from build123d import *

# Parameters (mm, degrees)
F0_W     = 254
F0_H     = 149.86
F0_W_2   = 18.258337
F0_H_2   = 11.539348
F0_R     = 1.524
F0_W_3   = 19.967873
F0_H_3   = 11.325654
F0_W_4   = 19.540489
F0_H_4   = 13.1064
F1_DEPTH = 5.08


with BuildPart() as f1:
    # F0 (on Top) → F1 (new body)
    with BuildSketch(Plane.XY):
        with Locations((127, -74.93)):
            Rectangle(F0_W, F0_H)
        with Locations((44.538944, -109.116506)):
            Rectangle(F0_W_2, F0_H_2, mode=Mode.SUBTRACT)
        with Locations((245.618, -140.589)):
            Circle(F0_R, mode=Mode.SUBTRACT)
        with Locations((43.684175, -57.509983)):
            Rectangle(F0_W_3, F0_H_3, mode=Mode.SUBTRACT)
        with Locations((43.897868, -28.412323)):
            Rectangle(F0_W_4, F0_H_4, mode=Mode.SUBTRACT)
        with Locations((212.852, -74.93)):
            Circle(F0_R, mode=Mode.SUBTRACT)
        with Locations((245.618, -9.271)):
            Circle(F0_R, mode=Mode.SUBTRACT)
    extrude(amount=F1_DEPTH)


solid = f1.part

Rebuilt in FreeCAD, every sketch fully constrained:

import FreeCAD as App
import Part
import Sketcher

V = App.Vector
Q = App.Units.Quantity


def add_polygon(sketch, points):
    """Adds a closed chain of lines whose ends are joined by coincident constraints."""
    first, n = sketch.GeometryCount, len(points)
    for a, b in zip(points, points[1:] + points[:1]):
        sketch.addGeometry(Part.LineSegment(App.Vector(*a, 0), App.Vector(*b, 0)), False)
    for i in range(n):
        sketch.addConstraint(Sketcher.Constraint("Coincident", first + i, 2, first + (i + 1) % n, 1))

doc = App.newDocument("Part")
body = doc.addObject("PartDesign::Body", "Body")

sketch1 = body.newObject("Sketcher::SketchObject", "Sketch")
sketch1.AttachmentSupport = (doc.getObject("XY_Plane"), [""])
sketch1.MapMode = "FlatFace"
add_polygon(sketch1, [(0, 0), (0, -149.9), (254, -149.9), (254, 0)])
add_polygon(sketch1, [(53.7, -114.9), (35.4, -114.9), (35.4, -103.3), (53.7, -103.3)])
sketch1.addGeometry(Part.Circle(V(245.6, -140.6, 0), V(0, 0, 1), 1.5), False)
add_polygon(sketch1, [(53.7, -63.2), (33.7, -63.2), (33.7, -51.8), (53.7, -51.8)])
add_polygon(sketch1, [(53.7, -35), (34.1, -35), (34.1, -21.9), (53.7, -21.9)])
sketch1.addGeometry(Part.Circle(V(212.9, -74.9, 0), V(0, 0, 1), 1.5), False)
sketch1.addGeometry(Part.Circle(V(245.6, -9.3, 0), V(0, 0, 1), 1.5), False)
sketch1.addConstraint([
    Sketcher.Constraint("Vertical", 0),
    Sketcher.Constraint("Horizontal", 1),
    Sketcher.Constraint("Vertical", 2),
    Sketcher.Constraint("Horizontal", 3),
    Sketcher.Constraint("Horizontal", 4),
    Sketcher.Constraint("Vertical", 5),
    Sketcher.Constraint("Horizontal", 6),
    Sketcher.Constraint("Vertical", 7),
    Sketcher.Constraint("Horizontal", 9),
    Sketcher.Constraint("Vertical", 10),
    Sketcher.Constraint("Horizontal", 11),
    Sketcher.Constraint("Vertical", 12),
    Sketcher.Constraint("Horizontal", 13),
    Sketcher.Constraint("Vertical", 14),
    Sketcher.Constraint("Horizontal", 15),
    Sketcher.Constraint("Vertical", 16),
    Sketcher.Constraint("Coincident", 3, 2, -1, 1),
    Sketcher.Constraint("Equal", 8, 17),
    Sketcher.Constraint("Equal", 17, 18),
    Sketcher.Constraint("Vertical", 8, 3, 18, 3),
    Sketcher.Constraint("Vertical", 7, 2, 11, 2),
    Sketcher.Constraint("Vertical", 12, 2, 15, 2),
    Sketcher.Constraint("Diameter", 8, Q("0.12 in")),
    Sketcher.Constraint("DistanceX", 1, 1, 1, 2, Q("10 in")),
    Sketcher.Constraint("DistanceY", 0, 2, 0, 1, Q("5.9 in")),
    Sketcher.Constraint("DistanceY", 14, 1, 14, 2, Q("0.516 in")),
    Sketcher.Constraint("DistanceX", -1, 1, 8, 3, Q("9.67 in")),
    Sketcher.Constraint("DistanceX", -1, 1, 17, 3, Q("8.38 in")),
    Sketcher.Constraint("DistanceY", 17, 3, -1, 1, Q("2.95 in")),
    Sketcher.Constraint("DistanceY", 8, 3, 18, 3, Q("5.17 in")),
    Sketcher.Constraint("DistanceY", 8, 3, -1, 1, Q("5.535 in")),
    Sketcher.Constraint("DistanceX", 13, 2, 13, 1, Q("19.540489 mm")),
    Sketcher.Constraint("DistanceX", 4, 2, 4, 1, Q("18.258337 mm")),
    Sketcher.Constraint("DistanceX", 9, 2, 9, 1, Q("19.967873 mm")),
    Sketcher.Constraint("DistanceY", 5, 1, 5, 2, Q("11.539348 mm")),
    Sketcher.Constraint("DistanceY", 10, 1, 10, 2, Q("11.325654 mm")),
    Sketcher.Constraint("DistanceY", 4, 2, -1, 1, Q("114.88618 mm")),
    Sketcher.Constraint("DistanceX", -1, 1, 9, 2, Q("33.700238 mm")),
    Sketcher.Constraint("DistanceY", 9, 2, -1, 1, Q("63.17281 mm")),
    Sketcher.Constraint("DistanceY", 13, 2, -1, 1, Q("34.965523 mm")),
])
pad1 = body.newObject("PartDesign::Pad", "Pad")
pad1.Profile = sketch1
pad1.Length = Q("0.2 in")

doc.recompute()
